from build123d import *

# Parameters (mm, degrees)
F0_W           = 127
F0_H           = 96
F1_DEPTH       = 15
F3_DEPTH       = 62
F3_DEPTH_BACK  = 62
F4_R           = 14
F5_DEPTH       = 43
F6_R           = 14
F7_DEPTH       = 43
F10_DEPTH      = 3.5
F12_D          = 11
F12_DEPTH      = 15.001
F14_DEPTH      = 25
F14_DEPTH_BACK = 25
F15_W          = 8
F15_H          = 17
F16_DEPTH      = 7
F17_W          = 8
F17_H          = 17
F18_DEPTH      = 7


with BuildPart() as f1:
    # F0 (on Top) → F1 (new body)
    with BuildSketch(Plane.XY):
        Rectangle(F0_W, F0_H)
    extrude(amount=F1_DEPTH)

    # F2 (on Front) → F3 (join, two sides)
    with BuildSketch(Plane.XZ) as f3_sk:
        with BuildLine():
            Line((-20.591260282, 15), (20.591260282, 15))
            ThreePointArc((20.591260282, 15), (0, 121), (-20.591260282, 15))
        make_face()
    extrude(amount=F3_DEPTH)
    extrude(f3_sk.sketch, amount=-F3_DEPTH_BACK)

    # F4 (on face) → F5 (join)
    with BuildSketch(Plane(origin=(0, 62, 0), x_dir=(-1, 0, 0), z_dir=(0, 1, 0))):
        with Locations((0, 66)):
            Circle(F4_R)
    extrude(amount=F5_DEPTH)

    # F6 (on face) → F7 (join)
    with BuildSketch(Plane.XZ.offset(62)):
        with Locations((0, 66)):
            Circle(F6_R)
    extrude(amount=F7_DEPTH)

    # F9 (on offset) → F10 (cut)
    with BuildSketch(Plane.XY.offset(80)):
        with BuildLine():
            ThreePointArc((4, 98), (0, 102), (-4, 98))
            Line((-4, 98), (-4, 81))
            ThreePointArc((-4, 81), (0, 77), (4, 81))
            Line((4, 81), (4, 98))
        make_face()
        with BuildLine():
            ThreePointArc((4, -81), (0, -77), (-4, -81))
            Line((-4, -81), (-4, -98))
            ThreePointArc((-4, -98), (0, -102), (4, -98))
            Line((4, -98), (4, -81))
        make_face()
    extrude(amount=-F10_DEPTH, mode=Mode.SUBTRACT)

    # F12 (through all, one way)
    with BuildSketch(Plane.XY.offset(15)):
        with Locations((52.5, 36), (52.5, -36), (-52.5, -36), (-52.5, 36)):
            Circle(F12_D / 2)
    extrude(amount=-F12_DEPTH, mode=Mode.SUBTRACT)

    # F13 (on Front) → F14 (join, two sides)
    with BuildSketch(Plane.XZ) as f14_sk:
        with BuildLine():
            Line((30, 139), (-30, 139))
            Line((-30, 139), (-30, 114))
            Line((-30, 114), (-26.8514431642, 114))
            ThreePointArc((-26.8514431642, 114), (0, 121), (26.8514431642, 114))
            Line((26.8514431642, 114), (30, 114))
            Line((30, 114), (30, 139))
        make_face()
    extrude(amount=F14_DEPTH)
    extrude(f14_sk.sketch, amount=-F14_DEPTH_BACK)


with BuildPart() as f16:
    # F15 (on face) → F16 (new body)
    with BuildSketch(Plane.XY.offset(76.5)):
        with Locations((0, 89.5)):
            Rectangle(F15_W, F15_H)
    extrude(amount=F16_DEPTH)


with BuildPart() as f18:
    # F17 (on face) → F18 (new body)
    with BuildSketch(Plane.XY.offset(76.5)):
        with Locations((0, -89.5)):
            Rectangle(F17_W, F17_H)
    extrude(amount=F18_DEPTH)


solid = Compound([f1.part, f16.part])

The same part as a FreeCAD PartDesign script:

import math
import FreeCAD as App
import Part
import Sketcher
from FreeCAD import Vector
Q = App.Units.Quantity


def add_polygon(sketch, points):
    """Adds a closed chain of lines whose ends are joined by coincident constraints."""
    first, n = sketch.GeometryCount, len(points)
    for a, b in zip(points, points[1:] + points[:1]):
        sketch.addGeometry(Part.LineSegment(App.Vector(*a, 0), App.Vector(*b, 0)), False)
    for i in range(n):
        sketch.addConstraint(Sketcher.Constraint("Coincident", first + i, 2, first + (i + 1) % n, 1))

doc = App.newDocument("Part")
params = doc.addObject("Spreadsheet::Sheet", "Params")
for row, (alias, value) in enumerate([
    ("sketch1_width", "127 mm"),
    ("sketch1_height", "96 mm"),
    ("pad1_length", "15 mm"),
    ("sketch2_radius", "55 mm"),
    ("pad2_length", "62 mm"),
    ("pad2_length2", "62 mm"),
    ("sketch3_diameter", "28 mm"),
    ("pad3_length", "43 mm"),
    ("sketch4_diameter", "28 mm"),
    ("pad4_length", "43 mm"),
    ("sketch5_radius", "4 mm"),
    ("sketch5_height", "17 mm"),
    ("pocket1_length", "3.5 mm"),
    ("sketch6_diameter", "11 mm"),
    ("sketch7_radius", "55 mm"),
    ("sketch7_width", "60 mm"),
    ("sketch7_height", "25 mm"),
    ("pad5_length", "25 mm"),
    ("pad5_length2", "25 mm"),
    ("sketch8_width", "8 mm"),
    ("sketch8_height", "17 mm"),
    ("pad6_length", "7 mm"),
    ("sketch9_width", "8 mm"),
    ("sketch9_height", "17 mm"),
    ("pad7_length", "7 mm"),
], start=1):
    params.set(f"A{row}", alias)
    params.set(f"B{row}", "=" + value)
    params.setAlias(f"B{row}", alias)

body = doc.addObject("PartDesign::Body", "Body")

# Sketch on XY plane
sketch1 = doc.addObject("Sketcher::SketchObject", "Sketch")
body.addObject(sketch1)
sketch1.AttachmentSupport = (doc.XY_Plane, [""])
sketch1.MapMode = "FlatFace"
add_polygon(sketch1, [(-64, 48), (-64, -48), (64, -48), (64, 48)])  # lines 0-3
sketch1.addConstraint([
    Sketcher.Constraint("Vertical", 0),
    Sketcher.Constraint("Horizontal", 1),
    Sketcher.Constraint("Vertical", 2),
    Sketcher.Constraint("Horizontal", 3),
    Sketcher.Constraint("Symmetric", 0, 2, 2, 2, -1, 1),
    Sketcher.Constraint("DistanceX", 1, 1, 1, 2, Q("127 mm")),
    Sketcher.Constraint("DistanceY", 0, 2, 0, 1, Q("96 mm")),
])
sketch1.setExpression("Constraints[9]", "Params.sketch1_width")
sketch1.setExpression("Constraints[10]", "Params.sketch1_height")
pad1 = doc.addObject("PartDesign::Pad", "Pad")
body.addObject(pad1)
pad1.Profile = sketch1
pad1.setExpression("Length", "Params.pad1_length")

# Sketch on XZ plane
sketch2 = doc.addObject("Sketcher::SketchObject", "Sketch001")
body.addObject(sketch2)
sketch2.AttachmentSupport = (doc.XZ_Plane, [""])
sketch2.MapMode = "FlatFace"
sketch2.addGeometry([
    Part.LineSegment(Vector(-21, 15, 0), Vector(21, 15, 0)),
    Part.ArcOfCircle(Part.Circle(Vector(0, 66, 0), Vector(0, 0, 1), 55), math.radians(-68), math.radians(248)),
], False)
sketch2.addConstraint([
    Sketcher.Constraint("Coincident", 0, 1, 1, 2),
    Sketcher.Constraint("Coincident", 1, 1, 0, 2),
    Sketcher.Constraint("Horizontal", 0),
    Sketcher.Constraint("PointOnObject", 1, 3, -2),
    Sketcher.Constraint("Radius", 1, Q("55 mm")),
    Sketcher.Constraint("DistanceY", -1, 1, 1, 3, Q("66 mm")),
    Sketcher.Constraint("DistanceY", -1, 1, 0, 1, Q("15 mm")),
])
sketch2.setExpression("Constraints[4]", "Params.sketch2_radius")
pad2 = doc.addObject("PartDesign::Pad", "Pad001")
body.addObject(pad2)
pad2.Profile = sketch2
pad2.Type = "TwoLengths"
pad2.setExpression("Length", "Params.pad2_length")
pad2.setExpression("Length2", "Params.pad2_length2")

# Sketch on XZ plane
sketch3 = doc.addObject("Sketcher::SketchObject", "Sketch002")
body.addObject(sketch3)
sketch3.AttachmentSupport = (doc.XZ_Plane, [""])
sketch3.MapMode = "FlatFace"
sketch3.AttachmentOffset = App.Placement(Vector(0, 0, -62), App.Rotation())
sketch3.addGeometry(Part.Circle(Vector(0, 66, 0), Vector(0, 0, 1), 14), False)
sketch3.addConstraint([
    Sketcher.Constraint("PointOnObject", 0, 3, -2),
    Sketcher.Constraint("Diameter", 0, Q("28 mm")),
    Sketcher.Constraint("DistanceY", -1, 1, 0, 3, Q("66 mm")),
])
sketch3.setExpression("Constraints[1]", "Params.sketch3_diameter")
pad3 = doc.addObject("PartDesign::Pad", "Pad002")
body.addObject(pad3)
pad3.Profile = sketch3
pad3.setExpression("Length", "Params.pad3_length")
pad3.Reversed = True

# Sketch on XZ plane
sketch4 = doc.addObject("Sketcher::SketchObject", "Sketch003")
body.addObject(sketch4)
sketch4.AttachmentSupport = (doc.XZ_Plane, [""])
sketch4.MapMode = "FlatFace"
sketch4.AttachmentOffset = App.Placement(Vector(0, 0, 62), App.Rotation())
sketch4.addGeometry(Part.Circle(Vector(0, 66, 0), Vector(0, 0, 1), 14), False)
sketch4.addConstraint([
    Sketcher.Constraint("PointOnObject", 0, 3, -2),
    Sketcher.Constraint("Diameter", 0, Q("28 mm")),
    Sketcher.Constraint("DistanceY", -1, 1, 0, 3, Q("66 mm")),
])
sketch4.setExpression("Constraints[1]", "Params.sketch4_diameter")
pad4 = doc.addObject("PartDesign::Pad", "Pad003")
body.addObject(pad4)
pad4.Profile = sketch4
pad4.setExpression("Length", "Params.pad4_length")

# Sketch on XY plane
sketch5 = doc.addObject("Sketcher::SketchObject", "Sketch004")
body.addObject(sketch5)
sketch5.AttachmentSupport = (doc.XY_Plane, [""])
sketch5.MapMode = "FlatFace"
sketch5.AttachmentOffset = App.Placement(Vector(0, 0, 80), App.Rotation())
sketch5.addGeometry([
    Part.ArcOfCircle(Part.Circle(Vector(0, 98, 0), Vector(0, 0, 1), 4), math.radians(0), math.radians(180)),  # 0
    Part.LineSegment(Vector(-4, 98, 0), Vector(-4, 81, 0)),  # 1
    Part.ArcOfCircle(Part.Circle(Vector(0, 81, 0), Vector(0, 0, 1), 4), math.radians(180), math.radians(360)),  # 2
    Part.LineSegment(Vector(4, 81, 0), Vector(4, 98, 0)),  # 3
    Part.ArcOfCircle(Part.Circle(Vector(0, -81, 0), Vector(0, 0, 1), 4), math.radians(0), math.radians(180)),  # 4
    Part.LineSegment(Vector(-4, -81, 0), Vector(-4, -98, 0)),  # 5
    Part.ArcOfCircle(Part.Circle(Vector(0, -98, 0), Vector(0, 0, 1), 4), math.radians(180), math.radians(360)),  # 6
    Part.LineSegment(Vector(4, -98, 0), Vector(4, -81, 0)),  # 7
], False)
sketch5.addConstraint([
    Sketcher.Constraint("Tangent", 0, 2, 1, 1),
    Sketcher.Constraint("Tangent", 1, 2, 2, 1),
    Sketcher.Constraint("Tangent", 2, 2, 3, 1),
    Sketcher.Constraint("Tangent", 3, 2, 0, 1),
    Sketcher.Constraint("Tangent", 4, 2, 5, 1),
    Sketcher.Constraint("Tangent", 5, 2, 6, 1),
    Sketcher.Constraint("Tangent", 6, 2, 7, 1),
    Sketcher.Constraint("Tangent", 7, 2, 4, 1),
    Sketcher.Constraint("Vertical", 1),
    Sketcher.Constraint("Vertical", 3),
    Sketcher.Constraint("Vertical", 5),
    Sketcher.Constraint("Vertical", 7),
    Sketcher.Constraint("Equal", 2, 4),
    Sketcher.Constraint("Symmetric", 2, 3, 4, 3, -1, 1),
    Sketcher.Constraint("Symmetric", 0, 3, 6, 3, -1),
    Sketcher.Constraint("Radius", 0, Q("4 mm")),
    Sketcher.Constraint("DistanceY", 1, 2, 1, 1, Q("17 mm")),
    Sketcher.Constraint("DistanceY", -1, 1, 0, 3, Q("98 mm")),
])
sketch5.setExpression("Constraints[15]", "Params.sketch5_radius")
sketch5.setExpression("Constraints[16]", "Params.sketch5_height")
pocket1 = doc.addObject("PartDesign::Pocket", "Pocket")
body.addObject(pocket1)
pocket1.Profile = sketch5
pocket1.setExpression("Length", "Params.pocket1_length")

# Sketch on XY plane
sketch6 = doc.addObject("Sketcher::SketchObject", "Sketch005")
body.addObject(sketch6)
sketch6.AttachmentSupport = (doc.XY_Plane, [""])
sketch6.MapMode = "FlatFace"
sketch6.AttachmentOffset = App.Placement(Vector(0, 0, 15), App.Rotation())
sketch6.addGeometry([
    Part.Circle(Vector(-52, 36, 0), Vector(0, 0, 1), 6),
    Part.Circle(Vector(52, 36, 0), Vector(0, 0, 1), 6),
    Part.Circle(Vector(52, -36, 0), Vector(0, 0, 1), 6),
    Part.Circle(Vector(-52, -36, 0), Vector(0, 0, 1), 6),
], False)
sketch6.addConstraint([
    Sketcher.Constraint("Equal", 0, 1),
    Sketcher.Constraint("Equal", 1, 2),
    Sketcher.Constraint("Equal", 2, 3),
    Sketcher.Constraint("Symmetric", 0, 3, 2, 3, -1, 1),
    Sketcher.Constraint("Symmetric", 1, 3, 3, 3, -1, 1),
    Sketcher.Constraint("Symmetric", 0, 3, 1, 3, -2),
    Sketcher.Constraint("Diameter", 0, Q("11 mm")),
    Sketcher.Constraint("DistanceY", -1, 1, 0, 3, Q("36 mm")),
    Sketcher.Constraint("DistanceX", 0, 3, 1, 3, Q("105 mm")),
])
sketch6.setExpression("Constraints[6]", "Params.sketch6_diameter")
pocket2 = doc.addObject("PartDesign::Pocket", "Pocket001")
body.addObject(pocket2)
pocket2.Profile = sketch6
pocket2.Type = "ThroughAll"

# Sketch on XZ plane
sketch7 = doc.addObject("Sketcher::SketchObject", "Sketch006")
body.addObject(sketch7)
sketch7.AttachmentSupport = (doc.XZ_Plane, [""])
sketch7.MapMode = "FlatFace"
sketch7.addGeometry([
    Part.LineSegment(Vector(30, 139, 0), Vector(-30, 139, 0)),  # 0
    Part.LineSegment(Vector(-30, 139, 0), Vector(-30, 114, 0)),  # 1
    Part.LineSegment(Vector(-30, 114, 0), Vector(-26.9, 114, 0)),  # 2
    Part.ArcOfCircle(Part.Circle(Vector(0, 66, 0), Vector(0, 0, 1), 55), math.radians(61), math.radians(119)),  # 3
    Part.LineSegment(Vector(26.9, 114, 0), Vector(30, 114, 0)),  # 4
    Part.LineSegment(Vector(30, 114, 0), Vector(30, 139, 0)),  # 5
], False)
sketch7.addConstraint([
    Sketcher.Constraint("Coincident", 0, 2, 1, 1),
    Sketcher.Constraint("Coincident", 1, 2, 2, 1),
    Sketcher.Constraint("Coincident", 2, 2, 3, 2),
    Sketcher.Constraint("Coincident", 3, 1, 4, 1),
    Sketcher.Constraint("Coincident", 4, 2, 5, 1),
    Sketcher.Constraint("Coincident", 5, 2, 0, 1),
    Sketcher.Constraint("Horizontal", 0),
    Sketcher.Constraint("Vertical", 1),
    Sketcher.Constraint("Horizontal", 2),
    Sketcher.Constraint("Horizontal", 4),
    Sketcher.Constraint("Vertical", 5),
    Sketcher.Constraint("Symmetric", 2, 2, 3, 1, -2),
    Sketcher.Constraint("Equal", 2, 4),
    Sketcher.Constraint("Radius", 3, Q("55 mm")),
    Sketcher.Constraint("DistanceX", 0, 2, 0, 1, Q("60 mm")),
    Sketcher.Constraint("DistanceY", 1, 2, 1, 1, Q("25 mm")),
    Sketcher.Constraint("DistanceY", -1, 1, 3, 3, Q("66 mm")),
    Sketcher.Constraint("DistanceY", -1, 1, 0, 2, Q("139 mm")),
])
sketch7.setExpression("Constraints[13]", "Params.sketch7_radius")
sketch7.setExpression("Constraints[14]", "Params.sketch7_width")
sketch7.setExpression("Constraints[15]", "Params.sketch7_height")
pad5 = doc.addObject("PartDesign::Pad", "Pad004")
body.addObject(pad5)
pad5.Profile = sketch7
pad5.Type = "TwoLengths"
pad5.setExpression("Length", "Params.pad5_length")
pad5.setExpression("Length2", "Params.pad5_length2")
body2 = doc.addObject("PartDesign::Body", "Body001")

# Sketch on XY plane
sketch8 = doc.addObject("Sketcher::SketchObject", "Sketch007")
body2.addObject(sketch8)
sketch8.AttachmentSupport = (doc.getObject("XY_Plane001"), [""])
sketch8.MapMode = "FlatFace"
sketch8.AttachmentOffset = App.Placement(Vector(0, 0, 76.5), App.Rotation())
add_polygon(sketch8, [(-4, 98), (-4, 81), (4, 81), (4, 98)])  # lines 0-3
sketch8.addConstraint([
    Sketcher.Constraint("Vertical", 0),
    Sketcher.Constraint("Horizontal", 1),
    Sketcher.Constraint("Vertical", 2),
    Sketcher.Constraint("Horizontal", 3),
    Sketcher.Constraint("DistanceX", 1, 1, 1, 2, Q("8 mm")),
    Sketcher.Constraint("DistanceY", 0, 2, 0, 1, Q("17 mm")),
    Sketcher.Constraint("DistanceX", 0, 2, -1, 1, Q("4 mm")),
    Sketcher.Constraint("DistanceY", -1, 1, 0, 2, Q("81 mm")),
])
sketch8.setExpression("Constraints[8]", "Params.sketch8_width")
sketch8.setExpression("Constraints[9]", "Params.sketch8_height")
pad6 = doc.addObject("PartDesign::Pad", "Pad005")
body2.addObject(pad6)
pad6.Profile = sketch8
pad6.setExpression("Length", "Params.pad6_length")
body3 = doc.addObject("PartDesign::Body", "Body002")

# Sketch on XY plane
sketch9 = doc.addObject("Sketcher::SketchObject", "Sketch008")
body3.addObject(sketch9)
sketch9.AttachmentSupport = (doc.getObject("XY_Plane002"), [""])
sketch9.MapMode = "FlatFace"
sketch9.AttachmentOffset = App.Placement(Vector(0, 0, 76.5), App.Rotation())
add_polygon(sketch9, [(-4, -81), (-4, -98), (4, -98), (4, -81)])  # lines 0-3
sketch9.addConstraint([
    Sketcher.Constraint("Vertical", 0),
    Sketcher.Constraint("Horizontal", 1),
    Sketcher.Constraint("Vertical", 2),
    Sketcher.Constraint("Horizontal", 3),
    Sketcher.Constraint("DistanceX", 1, 1, 1, 2, Q("8 mm")),
    Sketcher.Constraint("DistanceY", 0, 2, 0, 1, Q("17 mm")),
    Sketcher.Constraint("DistanceX", 0, 2, -1, 1, Q("4 mm")),
    Sketcher.Constraint("DistanceY", 0, 2, -1, 1, Q("98 mm")),
])
sketch9.setExpression("Constraints[8]", "Params.sketch9_width")
sketch9.setExpression("Constraints[9]", "Params.sketch9_height")
pad7 = doc.addObject("PartDesign::Pad", "Pad006")
body3.addObject(pad7)
pad7.Profile = sketch9
pad7.setExpression("Length", "Params.pad7_length")
body3.Visibility = False

doc.recompute()
